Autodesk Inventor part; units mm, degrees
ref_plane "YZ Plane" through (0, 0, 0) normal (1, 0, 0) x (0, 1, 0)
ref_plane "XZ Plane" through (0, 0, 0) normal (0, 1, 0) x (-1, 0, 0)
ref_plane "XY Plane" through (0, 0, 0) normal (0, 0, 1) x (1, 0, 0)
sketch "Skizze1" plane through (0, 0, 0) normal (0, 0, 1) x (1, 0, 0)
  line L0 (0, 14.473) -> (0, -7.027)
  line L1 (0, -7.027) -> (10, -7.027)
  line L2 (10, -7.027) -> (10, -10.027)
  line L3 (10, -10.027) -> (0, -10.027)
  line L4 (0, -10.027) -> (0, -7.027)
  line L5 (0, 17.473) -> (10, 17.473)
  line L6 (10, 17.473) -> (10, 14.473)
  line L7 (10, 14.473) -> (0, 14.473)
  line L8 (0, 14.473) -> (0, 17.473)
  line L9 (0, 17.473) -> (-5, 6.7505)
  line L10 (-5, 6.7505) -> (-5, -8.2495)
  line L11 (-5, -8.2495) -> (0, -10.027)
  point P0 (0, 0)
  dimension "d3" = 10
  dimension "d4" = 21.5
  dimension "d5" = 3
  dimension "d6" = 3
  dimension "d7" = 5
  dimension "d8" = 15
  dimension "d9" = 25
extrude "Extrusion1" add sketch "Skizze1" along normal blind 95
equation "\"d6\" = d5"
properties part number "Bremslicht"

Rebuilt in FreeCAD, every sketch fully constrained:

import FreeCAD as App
import Part
import Sketcher

V = App.Vector
Q = App.Units.Quantity


def add_polygon(sketch, points):
    """Adds a closed chain of lines whose ends are joined by coincident constraints."""
    first, n = sketch.GeometryCount, len(points)
    for a, b in zip(points, points[1:] + points[:1]):
        sketch.addGeometry(Part.LineSegment(App.Vector(*a, 0), App.Vector(*b, 0)), False)
    for i in range(n):
        sketch.addConstraint(Sketcher.Constraint("Coincident", first + i, 2, first + (i + 1) % n, 1))

doc = App.newDocument("Part")
body = doc.addObject("PartDesign::Body", "Body")

sketch1 = body.newObject("Sketcher::SketchObject", "Sketch")
sketch1.AttachmentSupport = (doc.getObject("XY_Plane"), [""])
sketch1.MapMode = "FlatFace"
add_polygon(sketch1, [(10, 17.5), (0, 17.5), (-5, 6.8), (-5, -8.2), (0, -10), (10, -10), (10, -7), (0, -7), (0, 14.5), (10, 14.5)])
sketch1.addConstraint(Sketcher.Constraint("Horizontal", 0))
sketch1.addConstraint(Sketcher.Constraint("Vertical", 2))
sketch1.addConstraint(Sketcher.Constraint("Horizontal", 4))
sketch1.addConstraint(Sketcher.Constraint("Vertical", 5))
sketch1.addConstraint(Sketcher.Constraint("Horizontal", 6))
sketch1.addConstraint(Sketcher.Constraint("Vertical", 7))
sketch1.addConstraint(Sketcher.Constraint("Horizontal", 8))
sketch1.addConstraint(Sketcher.Constraint("Vertical", 9))
sketch1.addConstraint(Sketcher.Constraint("PointOnObject", 0, 2, -2))
sketch1.addConstraint(Sketcher.Constraint("PointOnObject", 3, 2, -2))
sketch1.addConstraint(Sketcher.Constraint("PointOnObject", 6, 2, -2))
sketch1.addConstraint(Sketcher.Constraint("Vertical", 5, 2, 8, 2))
sketch1.addConstraint(Sketcher.Constraint("Equal", 5, 9))
sketch1.addConstraint(Sketcher.Constraint("DistanceX", 0, 2, 0, 1, Q("10 mm")))
sketch1.addConstraint(Sketcher.Constraint("DistanceY", 2, 2, 2, 1, Q("15 mm")))
sketch1.addConstraint(Sketcher.Constraint("DistanceY", 5, 1, 5, 2, Q("3 mm")))
sketch1.addConstraint(Sketcher.Constraint("DistanceY", 7, 1, 7, 2, Q("21.5 mm")))
sketch1.addConstraint(Sketcher.Constraint("DistanceX", 1, 2, -1, 1, Q("5 mm")))
sketch1.addConstraint(Sketcher.Constraint("Angle", 1, Q("-115 deg")))
sketch1.addConstraint(Sketcher.Constraint("DistanceY", -1, 1, 0, 2, Q("17.473 mm")))
pad1 = body.newObject("PartDesign::Pad", "Pad")
pad1.Profile = sketch1
pad1.Length = 95

doc.recompute()
